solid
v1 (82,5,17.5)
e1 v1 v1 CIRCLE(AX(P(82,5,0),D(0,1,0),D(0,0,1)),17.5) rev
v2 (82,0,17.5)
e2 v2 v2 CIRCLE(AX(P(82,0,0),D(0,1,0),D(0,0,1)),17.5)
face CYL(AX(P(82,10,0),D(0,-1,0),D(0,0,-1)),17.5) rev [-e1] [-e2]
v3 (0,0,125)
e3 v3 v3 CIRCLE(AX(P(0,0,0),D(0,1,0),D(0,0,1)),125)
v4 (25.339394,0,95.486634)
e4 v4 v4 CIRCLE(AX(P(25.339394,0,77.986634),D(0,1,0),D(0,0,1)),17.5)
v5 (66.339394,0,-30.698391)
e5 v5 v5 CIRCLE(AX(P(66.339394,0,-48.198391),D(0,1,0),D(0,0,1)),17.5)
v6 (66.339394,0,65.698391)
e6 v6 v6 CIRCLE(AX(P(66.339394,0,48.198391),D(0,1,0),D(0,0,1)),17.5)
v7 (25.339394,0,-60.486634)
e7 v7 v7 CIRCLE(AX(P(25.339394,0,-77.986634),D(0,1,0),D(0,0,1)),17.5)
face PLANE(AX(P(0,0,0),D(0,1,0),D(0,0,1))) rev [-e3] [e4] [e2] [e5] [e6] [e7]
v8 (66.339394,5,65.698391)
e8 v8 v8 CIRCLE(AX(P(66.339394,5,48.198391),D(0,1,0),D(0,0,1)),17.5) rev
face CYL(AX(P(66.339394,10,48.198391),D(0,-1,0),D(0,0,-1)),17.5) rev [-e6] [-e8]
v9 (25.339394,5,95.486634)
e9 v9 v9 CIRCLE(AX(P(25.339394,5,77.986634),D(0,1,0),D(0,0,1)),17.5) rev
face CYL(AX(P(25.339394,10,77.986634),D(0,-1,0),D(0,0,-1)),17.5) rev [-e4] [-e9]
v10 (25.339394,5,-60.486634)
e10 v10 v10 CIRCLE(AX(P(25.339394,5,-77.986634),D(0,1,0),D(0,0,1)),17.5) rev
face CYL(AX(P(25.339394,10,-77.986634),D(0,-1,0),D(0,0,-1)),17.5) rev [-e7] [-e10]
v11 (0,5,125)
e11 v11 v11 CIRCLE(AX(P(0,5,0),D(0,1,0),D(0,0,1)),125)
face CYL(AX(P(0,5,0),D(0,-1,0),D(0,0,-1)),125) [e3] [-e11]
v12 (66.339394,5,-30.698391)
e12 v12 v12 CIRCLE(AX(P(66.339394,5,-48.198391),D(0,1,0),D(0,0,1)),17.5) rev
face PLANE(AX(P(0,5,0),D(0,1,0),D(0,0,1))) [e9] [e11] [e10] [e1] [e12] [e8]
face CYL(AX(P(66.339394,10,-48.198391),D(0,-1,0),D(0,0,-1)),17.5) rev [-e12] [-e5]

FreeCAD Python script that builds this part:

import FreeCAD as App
import Part
import Sketcher

V = App.Vector
Q = App.Units.Quantity

doc = App.newDocument("Part")
body = doc.addObject("PartDesign::Body", "Body")

sketch1 = body.newObject("Sketcher::SketchObject", "Sketch")
sketch1.AttachmentSupport = (doc.getObject("XZ_Plane"), [""])
sketch1.MapMode = "FlatFace"
sketch1.addGeometry(Part.Circle(V(0, 0, 0), V(0, 0, 1), 125), False)
sketch1.addConstraint([
    Sketcher.Constraint("Coincident", 0, 3, -1, 1),
    Sketcher.Constraint("Diameter", 0, Q("250 mm")),
])
pad1 = body.newObject("PartDesign::Pad", "Pad")
pad1.Profile = sketch1
pad1.Length = 5
pad1.Reversed = True

sketch2 = body.newObject("Sketcher::SketchObject", "Sketch001")
sketch2.AttachmentSupport = (doc.getObject("XZ_Plane"), [""])
sketch2.MapMode = "FlatFace"
sketch2.addGeometry([
    Part.Circle(V(25, -78, 0), V(0, 0, 1), 18),
    Part.Circle(V(66, -48, 0), V(0, 0, 1), 18),
    Part.Circle(V(82, 0, 0), V(0, 0, 1), 18),
    Part.Circle(V(66, 48, 0), V(0, 0, 1), 18),
    Part.Circle(V(25, 78, 0), V(0, 0, 1), 18),
], False)
sketch2.addConstraint([
    Sketcher.Constraint("Equal", 0, 1),
    Sketcher.Constraint("Equal", 1, 2),
    Sketcher.Constraint("Equal", 2, 3),
    Sketcher.Constraint("Equal", 3, 4),
    Sketcher.Constraint("Symmetric", 1, 3, 3, 3, -1),
    Sketcher.Constraint("Symmetric", 0, 3, 4, 3, -1),
    Sketcher.Constraint("PointOnObject", 2, 3, -1),
    Sketcher.Constraint("Diameter", 0, Q("35 mm")),
    Sketcher.Constraint("DistanceX", -1, 1, 2, 3, Q("82 mm")),
    Sketcher.Constraint("DistanceX", 0, 3, 1, 3, Q("41 mm")),
    Sketcher.Constraint("DistanceY", 1, 3, -1, 1, Q("48.198391 mm")),
    Sketcher.Constraint("DistanceY", 0, 3, 4, 3, Q("155.973269 mm")),
    Sketcher.Constraint("DistanceX", -1, 1, 0, 3, Q("25.339394 mm")),
])
pocket1 = body.newObject("PartDesign::Pocket", "Pocket")
pocket1.Profile = sketch2
pocket1.Length = 10

doc.recompute()
